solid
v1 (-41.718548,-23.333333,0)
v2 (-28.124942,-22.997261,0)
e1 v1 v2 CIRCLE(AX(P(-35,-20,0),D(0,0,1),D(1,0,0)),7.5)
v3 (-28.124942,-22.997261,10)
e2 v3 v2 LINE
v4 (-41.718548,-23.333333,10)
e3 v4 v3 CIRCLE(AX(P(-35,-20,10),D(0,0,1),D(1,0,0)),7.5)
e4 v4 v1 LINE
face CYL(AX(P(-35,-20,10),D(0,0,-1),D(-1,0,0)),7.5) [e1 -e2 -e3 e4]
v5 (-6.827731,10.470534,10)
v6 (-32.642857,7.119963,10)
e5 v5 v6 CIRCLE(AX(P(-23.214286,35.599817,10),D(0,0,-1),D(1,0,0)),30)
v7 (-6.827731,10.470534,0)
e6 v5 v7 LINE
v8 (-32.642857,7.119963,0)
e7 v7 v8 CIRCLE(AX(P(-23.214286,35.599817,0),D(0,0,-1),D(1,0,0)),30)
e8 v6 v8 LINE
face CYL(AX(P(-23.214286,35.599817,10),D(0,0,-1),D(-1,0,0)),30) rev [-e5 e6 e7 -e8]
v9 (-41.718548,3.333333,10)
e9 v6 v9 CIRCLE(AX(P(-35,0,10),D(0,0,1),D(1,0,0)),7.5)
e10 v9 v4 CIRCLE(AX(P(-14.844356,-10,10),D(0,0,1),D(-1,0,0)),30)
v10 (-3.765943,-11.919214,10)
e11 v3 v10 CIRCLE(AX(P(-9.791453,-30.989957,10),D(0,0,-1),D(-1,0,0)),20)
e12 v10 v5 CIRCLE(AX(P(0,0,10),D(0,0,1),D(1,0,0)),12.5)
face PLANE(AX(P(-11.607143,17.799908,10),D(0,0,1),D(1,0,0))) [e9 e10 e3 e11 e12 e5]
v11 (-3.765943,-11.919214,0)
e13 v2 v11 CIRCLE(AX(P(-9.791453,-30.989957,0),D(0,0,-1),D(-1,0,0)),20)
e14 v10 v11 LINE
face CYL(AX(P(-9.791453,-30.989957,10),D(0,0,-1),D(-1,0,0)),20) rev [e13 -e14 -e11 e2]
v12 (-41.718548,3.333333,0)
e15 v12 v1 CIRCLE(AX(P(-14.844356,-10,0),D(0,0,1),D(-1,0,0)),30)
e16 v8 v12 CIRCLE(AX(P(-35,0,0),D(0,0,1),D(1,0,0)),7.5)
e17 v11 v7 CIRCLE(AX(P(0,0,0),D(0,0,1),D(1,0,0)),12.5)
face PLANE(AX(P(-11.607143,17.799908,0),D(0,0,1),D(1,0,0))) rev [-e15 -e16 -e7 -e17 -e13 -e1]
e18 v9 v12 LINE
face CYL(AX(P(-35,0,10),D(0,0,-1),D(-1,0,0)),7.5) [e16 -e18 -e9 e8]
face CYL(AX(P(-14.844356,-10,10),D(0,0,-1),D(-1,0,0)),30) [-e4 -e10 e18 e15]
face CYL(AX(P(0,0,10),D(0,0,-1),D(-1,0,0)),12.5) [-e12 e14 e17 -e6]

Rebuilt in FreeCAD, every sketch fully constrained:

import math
import FreeCAD as App
import Part
import Sketcher
Q = App.Units.Quantity

doc = App.newDocument("Part")
body = doc.addObject("PartDesign::Body", "Body")

# Sketch on XY plane
sketch1 = body.newObject("Sketcher::SketchObject", "Sketch")
sketch1.AttachmentSupport = (doc.getObject("XY_Plane"), [""])
sketch1.MapMode = "FlatFace"
sketch1.addGeometry([
    Part.ArcOfCircle(Part.Circle(App.Vector(0, 0, 0), App.Vector(0, 0, 1), 12), math.radians(-108), math.radians(123)),  # 0
    Part.ArcOfCircle(Part.Circle(App.Vector(-23, 36, 0), App.Vector(0, 0, 1), 30), math.radians(-108), math.radians(-57)),  # 1
    Part.ArcOfCircle(Part.Circle(App.Vector(-35, 0, 0), App.Vector(0, 0, 1), 7), math.radians(72), math.radians(154)),  # 2
    Part.ArcOfCircle(Part.Circle(App.Vector(-15, -10, 0), App.Vector(0, 0, 1), 30), math.radians(154), math.radians(206)),  # 3
    Part.ArcOfCircle(Part.Circle(App.Vector(-35, -20, 0), App.Vector(0, 0, 1), 8), math.radians(-154), math.radians(-24)),  # 4
    Part.ArcOfCircle(Part.Circle(App.Vector(-10, -31, 0), App.Vector(0, 0, 1), 20), math.radians(72), math.radians(156)),  # 5
], False)
sketch1.addConstraint([
    Sketcher.Constraint("Tangent", 0, 2, 1, 2),
    Sketcher.Constraint("Tangent", 1, 1, 2, 1),
    Sketcher.Constraint("Tangent", 2, 2, 3, 1),
    Sketcher.Constraint("Tangent", 3, 2, 4, 1),
    Sketcher.Constraint("Tangent", 4, 2, 5, 2),
    Sketcher.Constraint("Tangent", 5, 1, 0, 1),
    Sketcher.Constraint("Coincident", 0, 3, -1, 1),
    Sketcher.Constraint("Equal", 1, 3),
    Sketcher.Constraint("Equal", 2, 4),
    Sketcher.Constraint("PointOnObject", 2, 3, -1),
    Sketcher.Constraint("Vertical", 2, 3, 4, 3),
    Sketcher.Constraint("Radius", 1, Q("30 mm")),
    Sketcher.Constraint("Radius", 5, Q("20 mm")),
    Sketcher.Constraint("Radius", 0, Q("12.5 mm")),
    Sketcher.Constraint("Radius", 2, Q("7.5 mm")),
    Sketcher.Constraint("DistanceX", 2, 3, -1, 1, Q("35 mm")),
    Sketcher.Constraint("DistanceY", 3, 3, -1, 1, Q("10 mm")),
])
pad1 = body.newObject("PartDesign::Pad", "Pad")
pad1.Profile = sketch1
pad1.Length = 10

doc.recompute()
